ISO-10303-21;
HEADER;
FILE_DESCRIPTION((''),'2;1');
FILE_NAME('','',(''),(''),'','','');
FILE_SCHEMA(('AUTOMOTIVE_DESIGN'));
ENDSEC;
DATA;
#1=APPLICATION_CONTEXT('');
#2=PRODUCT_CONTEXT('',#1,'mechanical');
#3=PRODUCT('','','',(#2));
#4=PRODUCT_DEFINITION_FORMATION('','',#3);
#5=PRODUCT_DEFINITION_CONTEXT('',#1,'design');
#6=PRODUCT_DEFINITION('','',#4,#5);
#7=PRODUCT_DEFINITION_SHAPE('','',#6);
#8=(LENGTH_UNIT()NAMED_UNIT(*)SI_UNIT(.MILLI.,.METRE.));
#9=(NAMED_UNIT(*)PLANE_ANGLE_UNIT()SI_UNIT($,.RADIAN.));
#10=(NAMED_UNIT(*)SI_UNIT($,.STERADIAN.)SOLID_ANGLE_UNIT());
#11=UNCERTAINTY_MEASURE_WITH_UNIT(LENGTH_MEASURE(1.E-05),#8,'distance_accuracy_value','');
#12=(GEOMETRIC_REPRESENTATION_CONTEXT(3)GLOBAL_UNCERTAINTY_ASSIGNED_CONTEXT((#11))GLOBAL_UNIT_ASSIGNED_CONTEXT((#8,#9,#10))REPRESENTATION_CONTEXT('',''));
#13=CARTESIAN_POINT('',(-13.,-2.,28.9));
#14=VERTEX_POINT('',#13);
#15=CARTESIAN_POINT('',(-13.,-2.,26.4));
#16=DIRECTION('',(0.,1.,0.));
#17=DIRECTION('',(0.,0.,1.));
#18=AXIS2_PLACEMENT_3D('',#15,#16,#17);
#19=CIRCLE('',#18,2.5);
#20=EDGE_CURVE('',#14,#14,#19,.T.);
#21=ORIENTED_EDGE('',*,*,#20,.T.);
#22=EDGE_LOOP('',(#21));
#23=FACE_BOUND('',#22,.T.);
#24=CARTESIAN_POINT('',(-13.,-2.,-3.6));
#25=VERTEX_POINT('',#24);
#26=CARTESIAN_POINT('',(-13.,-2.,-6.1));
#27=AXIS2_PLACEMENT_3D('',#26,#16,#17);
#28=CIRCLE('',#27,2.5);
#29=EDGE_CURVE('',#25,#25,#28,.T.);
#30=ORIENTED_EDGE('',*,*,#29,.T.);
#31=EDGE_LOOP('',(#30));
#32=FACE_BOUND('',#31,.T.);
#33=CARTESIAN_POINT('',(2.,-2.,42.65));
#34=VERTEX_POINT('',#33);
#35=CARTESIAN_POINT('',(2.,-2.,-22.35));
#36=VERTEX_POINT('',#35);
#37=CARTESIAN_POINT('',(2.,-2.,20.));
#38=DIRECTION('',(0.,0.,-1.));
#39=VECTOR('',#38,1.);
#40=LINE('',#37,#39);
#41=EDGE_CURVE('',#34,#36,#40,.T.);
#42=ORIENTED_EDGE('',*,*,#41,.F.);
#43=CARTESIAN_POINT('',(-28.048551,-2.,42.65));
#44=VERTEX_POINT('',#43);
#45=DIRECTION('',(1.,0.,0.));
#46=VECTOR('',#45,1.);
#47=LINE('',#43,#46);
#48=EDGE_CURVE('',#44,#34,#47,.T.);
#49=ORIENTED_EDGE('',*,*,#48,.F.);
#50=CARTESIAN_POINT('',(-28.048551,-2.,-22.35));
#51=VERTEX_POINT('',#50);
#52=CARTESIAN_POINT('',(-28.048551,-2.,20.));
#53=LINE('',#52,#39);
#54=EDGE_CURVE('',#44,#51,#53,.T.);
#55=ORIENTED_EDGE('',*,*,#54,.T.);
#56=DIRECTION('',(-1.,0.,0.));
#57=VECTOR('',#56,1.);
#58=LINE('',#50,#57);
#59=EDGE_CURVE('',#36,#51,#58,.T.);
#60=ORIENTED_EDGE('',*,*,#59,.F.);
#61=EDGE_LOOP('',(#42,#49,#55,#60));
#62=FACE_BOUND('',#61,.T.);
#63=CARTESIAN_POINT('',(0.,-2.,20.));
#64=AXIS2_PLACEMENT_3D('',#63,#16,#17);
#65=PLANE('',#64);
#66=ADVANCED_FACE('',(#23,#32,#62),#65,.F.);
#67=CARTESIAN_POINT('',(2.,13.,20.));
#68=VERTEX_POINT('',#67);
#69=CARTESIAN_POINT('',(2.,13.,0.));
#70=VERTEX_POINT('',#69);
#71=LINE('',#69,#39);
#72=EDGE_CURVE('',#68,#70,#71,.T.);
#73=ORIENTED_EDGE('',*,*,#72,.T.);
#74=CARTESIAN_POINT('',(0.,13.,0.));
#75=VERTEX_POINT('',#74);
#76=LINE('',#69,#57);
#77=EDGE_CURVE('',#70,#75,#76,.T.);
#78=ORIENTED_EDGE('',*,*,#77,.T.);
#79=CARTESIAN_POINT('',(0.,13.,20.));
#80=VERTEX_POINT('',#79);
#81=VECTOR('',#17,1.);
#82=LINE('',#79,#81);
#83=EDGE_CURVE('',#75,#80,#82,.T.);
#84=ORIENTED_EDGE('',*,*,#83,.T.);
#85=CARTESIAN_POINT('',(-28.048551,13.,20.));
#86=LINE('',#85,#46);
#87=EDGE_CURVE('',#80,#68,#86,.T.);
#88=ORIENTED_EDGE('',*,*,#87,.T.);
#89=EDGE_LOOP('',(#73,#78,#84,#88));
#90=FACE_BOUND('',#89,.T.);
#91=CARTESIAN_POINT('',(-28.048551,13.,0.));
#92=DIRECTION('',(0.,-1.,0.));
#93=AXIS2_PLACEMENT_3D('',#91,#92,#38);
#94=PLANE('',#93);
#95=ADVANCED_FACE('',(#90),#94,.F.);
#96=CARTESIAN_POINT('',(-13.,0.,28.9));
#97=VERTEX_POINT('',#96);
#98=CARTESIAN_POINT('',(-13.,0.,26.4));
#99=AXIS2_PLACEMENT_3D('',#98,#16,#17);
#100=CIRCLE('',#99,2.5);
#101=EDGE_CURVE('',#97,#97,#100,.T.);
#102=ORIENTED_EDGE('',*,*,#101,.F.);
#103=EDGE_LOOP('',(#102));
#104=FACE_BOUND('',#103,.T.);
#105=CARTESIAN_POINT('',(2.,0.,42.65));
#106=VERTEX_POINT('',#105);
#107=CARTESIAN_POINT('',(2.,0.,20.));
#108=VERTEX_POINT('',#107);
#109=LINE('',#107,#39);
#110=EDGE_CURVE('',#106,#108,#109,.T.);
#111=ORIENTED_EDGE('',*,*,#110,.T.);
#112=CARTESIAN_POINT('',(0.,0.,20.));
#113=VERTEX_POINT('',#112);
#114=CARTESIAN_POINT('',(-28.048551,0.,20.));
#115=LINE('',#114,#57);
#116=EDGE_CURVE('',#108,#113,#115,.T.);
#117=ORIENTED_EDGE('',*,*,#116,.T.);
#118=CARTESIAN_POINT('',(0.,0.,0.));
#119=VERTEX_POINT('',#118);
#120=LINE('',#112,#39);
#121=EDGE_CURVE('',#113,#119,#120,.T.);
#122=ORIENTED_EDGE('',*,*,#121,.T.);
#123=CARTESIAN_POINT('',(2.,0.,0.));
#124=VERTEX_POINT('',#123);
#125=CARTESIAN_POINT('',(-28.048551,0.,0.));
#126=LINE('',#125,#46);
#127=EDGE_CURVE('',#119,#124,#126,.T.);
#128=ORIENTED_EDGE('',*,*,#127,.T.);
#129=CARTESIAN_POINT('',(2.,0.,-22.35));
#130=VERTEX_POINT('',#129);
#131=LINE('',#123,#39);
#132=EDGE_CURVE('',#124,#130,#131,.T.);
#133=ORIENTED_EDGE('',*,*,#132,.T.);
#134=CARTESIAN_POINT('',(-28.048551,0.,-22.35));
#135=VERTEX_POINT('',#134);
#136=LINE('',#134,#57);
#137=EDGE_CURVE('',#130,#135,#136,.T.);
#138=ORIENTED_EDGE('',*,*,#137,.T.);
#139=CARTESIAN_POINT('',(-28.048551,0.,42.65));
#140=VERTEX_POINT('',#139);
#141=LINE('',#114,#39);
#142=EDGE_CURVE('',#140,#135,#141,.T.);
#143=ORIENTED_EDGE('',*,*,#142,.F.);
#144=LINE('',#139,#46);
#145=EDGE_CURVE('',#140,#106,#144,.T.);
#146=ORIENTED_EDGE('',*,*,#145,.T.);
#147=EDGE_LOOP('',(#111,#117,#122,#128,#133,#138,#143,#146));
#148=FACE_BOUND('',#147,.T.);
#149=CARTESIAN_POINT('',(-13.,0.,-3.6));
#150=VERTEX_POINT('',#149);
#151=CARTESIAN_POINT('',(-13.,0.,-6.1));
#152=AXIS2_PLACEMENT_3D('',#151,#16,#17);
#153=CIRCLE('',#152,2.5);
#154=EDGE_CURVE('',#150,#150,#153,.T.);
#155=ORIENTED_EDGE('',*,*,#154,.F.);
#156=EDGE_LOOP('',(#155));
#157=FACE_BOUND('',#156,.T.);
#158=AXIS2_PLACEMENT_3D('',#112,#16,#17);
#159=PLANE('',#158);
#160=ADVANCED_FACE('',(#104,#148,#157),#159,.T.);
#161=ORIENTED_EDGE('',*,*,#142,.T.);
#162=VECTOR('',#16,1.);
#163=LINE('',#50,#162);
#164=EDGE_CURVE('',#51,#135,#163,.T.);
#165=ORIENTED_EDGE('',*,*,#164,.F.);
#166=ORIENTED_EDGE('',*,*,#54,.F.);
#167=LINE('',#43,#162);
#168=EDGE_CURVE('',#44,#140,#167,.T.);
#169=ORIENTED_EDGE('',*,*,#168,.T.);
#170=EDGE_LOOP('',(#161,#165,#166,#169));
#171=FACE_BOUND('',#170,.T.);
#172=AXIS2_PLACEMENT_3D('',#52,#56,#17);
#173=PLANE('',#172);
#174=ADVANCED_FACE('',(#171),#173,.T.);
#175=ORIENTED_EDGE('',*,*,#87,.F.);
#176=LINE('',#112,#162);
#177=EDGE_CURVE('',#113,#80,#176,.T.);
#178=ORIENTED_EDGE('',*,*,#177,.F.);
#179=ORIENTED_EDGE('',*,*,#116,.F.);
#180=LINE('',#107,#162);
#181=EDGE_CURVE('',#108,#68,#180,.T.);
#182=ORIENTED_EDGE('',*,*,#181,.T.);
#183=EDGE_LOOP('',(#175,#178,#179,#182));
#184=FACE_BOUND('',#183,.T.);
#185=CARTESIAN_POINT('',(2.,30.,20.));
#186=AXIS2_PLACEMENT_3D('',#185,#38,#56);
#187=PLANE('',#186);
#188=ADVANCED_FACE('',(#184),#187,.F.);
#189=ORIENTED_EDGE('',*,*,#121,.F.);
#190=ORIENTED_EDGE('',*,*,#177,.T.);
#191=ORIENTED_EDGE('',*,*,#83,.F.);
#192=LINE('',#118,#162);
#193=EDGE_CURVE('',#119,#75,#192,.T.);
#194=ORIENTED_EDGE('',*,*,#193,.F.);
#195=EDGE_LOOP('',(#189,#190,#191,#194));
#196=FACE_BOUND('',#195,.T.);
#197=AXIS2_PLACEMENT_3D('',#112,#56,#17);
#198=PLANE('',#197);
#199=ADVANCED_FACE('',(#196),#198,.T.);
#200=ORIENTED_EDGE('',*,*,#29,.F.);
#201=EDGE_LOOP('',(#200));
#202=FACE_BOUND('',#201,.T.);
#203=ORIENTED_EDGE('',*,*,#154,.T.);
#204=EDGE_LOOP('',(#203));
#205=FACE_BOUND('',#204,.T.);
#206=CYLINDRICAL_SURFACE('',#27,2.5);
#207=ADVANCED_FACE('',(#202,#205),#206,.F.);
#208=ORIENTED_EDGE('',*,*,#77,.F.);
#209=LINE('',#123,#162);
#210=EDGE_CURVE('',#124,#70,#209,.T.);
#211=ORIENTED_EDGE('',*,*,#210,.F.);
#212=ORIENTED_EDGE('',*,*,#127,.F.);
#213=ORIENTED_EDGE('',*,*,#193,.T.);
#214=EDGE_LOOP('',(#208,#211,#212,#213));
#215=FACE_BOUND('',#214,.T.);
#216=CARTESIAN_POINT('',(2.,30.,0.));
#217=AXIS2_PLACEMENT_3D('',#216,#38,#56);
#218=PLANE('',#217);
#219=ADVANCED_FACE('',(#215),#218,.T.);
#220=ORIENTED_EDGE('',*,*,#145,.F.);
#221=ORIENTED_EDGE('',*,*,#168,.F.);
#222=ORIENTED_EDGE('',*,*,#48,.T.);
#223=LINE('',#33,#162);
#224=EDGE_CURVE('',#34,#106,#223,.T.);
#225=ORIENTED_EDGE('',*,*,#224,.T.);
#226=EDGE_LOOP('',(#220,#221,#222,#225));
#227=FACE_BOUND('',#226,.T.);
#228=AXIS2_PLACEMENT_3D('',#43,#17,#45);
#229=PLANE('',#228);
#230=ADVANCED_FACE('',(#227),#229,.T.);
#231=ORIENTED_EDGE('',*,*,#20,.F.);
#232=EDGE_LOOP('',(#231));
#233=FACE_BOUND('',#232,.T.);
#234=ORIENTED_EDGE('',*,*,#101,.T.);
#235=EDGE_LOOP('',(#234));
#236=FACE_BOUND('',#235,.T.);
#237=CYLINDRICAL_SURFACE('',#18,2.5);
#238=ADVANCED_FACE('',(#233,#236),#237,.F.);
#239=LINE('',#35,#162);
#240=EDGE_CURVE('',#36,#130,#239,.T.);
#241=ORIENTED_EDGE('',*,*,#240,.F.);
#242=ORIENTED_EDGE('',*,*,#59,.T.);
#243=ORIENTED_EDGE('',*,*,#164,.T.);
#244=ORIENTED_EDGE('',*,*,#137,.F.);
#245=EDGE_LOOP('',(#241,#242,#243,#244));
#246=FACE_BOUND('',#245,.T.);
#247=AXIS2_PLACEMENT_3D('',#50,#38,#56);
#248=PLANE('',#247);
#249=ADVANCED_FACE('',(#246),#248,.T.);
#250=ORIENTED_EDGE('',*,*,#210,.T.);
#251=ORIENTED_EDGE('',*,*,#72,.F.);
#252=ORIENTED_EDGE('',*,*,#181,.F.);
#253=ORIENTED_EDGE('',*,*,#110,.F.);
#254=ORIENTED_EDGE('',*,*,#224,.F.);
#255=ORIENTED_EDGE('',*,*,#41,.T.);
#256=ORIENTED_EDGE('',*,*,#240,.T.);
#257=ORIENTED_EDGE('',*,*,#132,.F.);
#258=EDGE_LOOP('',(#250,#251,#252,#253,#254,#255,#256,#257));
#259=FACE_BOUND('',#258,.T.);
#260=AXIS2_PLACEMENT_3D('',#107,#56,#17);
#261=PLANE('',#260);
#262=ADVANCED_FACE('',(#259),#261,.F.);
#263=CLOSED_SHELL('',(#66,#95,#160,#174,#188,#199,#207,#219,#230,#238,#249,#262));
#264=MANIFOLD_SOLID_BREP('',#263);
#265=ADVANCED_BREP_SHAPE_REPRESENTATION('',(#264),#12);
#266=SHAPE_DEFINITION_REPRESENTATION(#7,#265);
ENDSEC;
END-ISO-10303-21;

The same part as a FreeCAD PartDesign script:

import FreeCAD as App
import Part
import Sketcher
Q = App.Units.Quantity

doc = App.newDocument("Part")
body = doc.addObject("PartDesign::Body", "Body")

# Sketch on XY plane
sketch1 = doc.addObject("Sketcher::SketchObject", "Sketch")
body.addObject(sketch1)
sketch1.AttachmentSupport = (doc.XY_Plane, [""])
sketch1.MapMode = "FlatFace"
sketch1.addGeometry(Part.LineSegment(App.Vector(0, 30, 0), App.Vector(0, 0, 0)), False)
sketch1.addGeometry(Part.LineSegment(App.Vector(0, 0, 0), App.Vector(-28, 0, 0)), False)
sketch1.addGeometry(Part.LineSegment(App.Vector(-28, 0, 0), App.Vector(-28, -2, 0)), False)
sketch1.addGeometry(Part.LineSegment(App.Vector(-28, -2, 0), App.Vector(2, -2, 0)), False)
sketch1.addGeometry(Part.LineSegment(App.Vector(2, -2, 0), App.Vector(2, 30, 0)), False)
sketch1.addGeometry(Part.LineSegment(App.Vector(2, 30, 0), App.Vector(0, 30, 0)), False)
sketch1.addConstraint(Sketcher.Constraint("Coincident", 0, 2, 1, 1))
sketch1.addConstraint(Sketcher.Constraint("Coincident", 1, 2, 2, 1))
sketch1.addConstraint(Sketcher.Constraint("Coincident", 2, 2, 3, 1))
sketch1.addConstraint(Sketcher.Constraint("Coincident", 3, 2, 4, 1))
sketch1.addConstraint(Sketcher.Constraint("Coincident", 4, 2, 5, 1))
sketch1.addConstraint(Sketcher.Constraint("Coincident", 5, 2, 0, 1))
sketch1.addConstraint(Sketcher.Constraint("Vertical", 0))
sketch1.addConstraint(Sketcher.Constraint("Horizontal", 1))
sketch1.addConstraint(Sketcher.Constraint("Vertical", 2))
sketch1.addConstraint(Sketcher.Constraint("Horizontal", 3))
sketch1.addConstraint(Sketcher.Constraint("Vertical", 4))
sketch1.addConstraint(Sketcher.Constraint("Horizontal", 5))
sketch1.addConstraint(Sketcher.Constraint("Coincident", 0, 2, -1, 1))
sketch1.addConstraint(Sketcher.Constraint("Equal", 5, 2))
sketch1.addConstraint(Sketcher.Constraint("DistanceX", 5, 2, 5, 1, Q("2 mm")))
sketch1.addConstraint(Sketcher.Constraint("DistanceY", 0, 2, 0, 1, Q("30 mm")))
sketch1.addConstraint(Sketcher.Constraint("DistanceX", 1, 2, 1, 1, Q("28.048551 mm")))
pad1 = doc.addObject("PartDesign::Pad", "Pad")
body.addObject(pad1)
pad1.Profile = sketch1
pad1.Length = 20

# Sketch on YZ plane
sketch2 = doc.addObject("Sketcher::SketchObject", "Sketch001")
body.addObject(sketch2)
sketch2.AttachmentSupport = (doc.YZ_Plane, [""])
sketch2.MapMode = "FlatFace"
sketch2.AttachmentOffset = App.Placement(App.Vector(0, 0, 2), App.Rotation())
sketch2.addGeometry(Part.LineSegment(App.Vector(30, 20, 0), App.Vector(13, 20, 0)), False)
sketch2.addGeometry(Part.LineSegment(App.Vector(13, 20, 0), App.Vector(13, 0, 0)), False)
sketch2.addGeometry(Part.LineSegment(App.Vector(13, 0, 0), App.Vector(30, 0, 0)), False)
sketch2.addGeometry(Part.LineSegment(App.Vector(30, 0, 0), App.Vector(30, 20, 0)), False)
sketch2.addConstraint(Sketcher.Constraint("Coincident", 0, 2, 1, 1))
sketch2.addConstraint(Sketcher.Constraint("Coincident", 1, 2, 2, 1))
sketch2.addConstraint(Sketcher.Constraint("Coincident", 2, 2, 3, 1))
sketch2.addConstraint(Sketcher.Constraint("Coincident", 3, 2, 0, 1))
sketch2.addConstraint(Sketcher.Constraint("Horizontal", 0))
sketch2.addConstraint(Sketcher.Constraint("Vertical", 1))
sketch2.addConstraint(Sketcher.Constraint("Horizontal", 2))
sketch2.addConstraint(Sketcher.Constraint("Vertical", 3))
sketch2.addConstraint(Sketcher.Constraint("PointOnObject", 1, 2, -1))
sketch2.addConstraint(Sketcher.Constraint("DistanceX", 0, 2, 0, 1, Q("17 mm")))
sketch2.addConstraint(Sketcher.Constraint("DistanceY", 1, 2, 1, 1, Q("20 mm")))
sketch2.addConstraint(Sketcher.Constraint("DistanceX", -1, 1, 0, 2, Q("13 mm")))
pocket1 = doc.addObject("PartDesign::Pocket", "Pocket")
body.addObject(pocket1)
pocket1.Profile = sketch2
pocket1.Type = "ThroughAll"

# Sketch on XZ plane
sketch3 = doc.addObject("Sketcher::SketchObject", "Sketch002")
body.addObject(sketch3)
sketch3.AttachmentSupport = (doc.XZ_Plane, [""])
sketch3.MapMode = "FlatFace"
sketch3.addGeometry(Part.LineSegment(App.Vector(-28, 0, 0), App.Vector(2, 0, 0)), False)
sketch3.addGeometry(Part.LineSegment(App.Vector(2, 0, 0), App.Vector(2, -22, 0)), False)
sketch3.addGeometry(Part.LineSegment(App.Vector(2, -22, 0), App.Vector(-28, -22, 0)), False)
sketch3.addGeometry(Part.LineSegment(App.Vector(-28, -22, 0), App.Vector(-28, 0, 0)), False)
sketch3.addGeometry(Part.LineSegment(App.Vector(-28, 20, 0), App.Vector(-28, 43, 0)), False)
sketch3.addGeometry(Part.LineSegment(App.Vector(-28, 43, 0), App.Vector(2, 43, 0)), False)
sketch3.addGeometry(Part.LineSegment(App.Vector(2, 43, 0), App.Vector(2, 20, 0)), False)
sketch3.addGeometry(Part.LineSegment(App.Vector(2, 20, 0), App.Vector(-28, 20, 0)), False)
sketch3.addConstraint(Sketcher.Constraint("Coincident", 0, 2, 1, 1))
sketch3.addConstraint(Sketcher.Constraint("Coincident", 1, 2, 2, 1))
sketch3.addConstraint(Sketcher.Constraint("Coincident", 2, 2, 3, 1))
sketch3.addConstraint(Sketcher.Constraint("Coincident", 3, 2, 0, 1))
sketch3.addConstraint(Sketcher.Constraint("Coincident", 4, 2, 5, 1))
sketch3.addConstraint(Sketcher.Constraint("Coincident", 5, 2, 6, 1))
sketch3.addConstraint(Sketcher.Constraint("Coincident", 6, 2, 7, 1))
sketch3.addConstraint(Sketcher.Constraint("Coincident", 7, 2, 4, 1))
sketch3.addConstraint(Sketcher.Constraint("Horizontal", 0))
sketch3.addConstraint(Sketcher.Constraint("Vertical", 1))
sketch3.addConstraint(Sketcher.Constraint("Horizontal", 2))
sketch3.addConstraint(Sketcher.Constraint("Vertical", 3))
sketch3.addConstraint(Sketcher.Constraint("Vertical", 4))
sketch3.addConstraint(Sketcher.Constraint("Horizontal", 5))
sketch3.addConstraint(Sketcher.Constraint("Vertical", 6))
sketch3.addConstraint(Sketcher.Constraint("Horizontal", 7))
sketch3.addConstraint(Sketcher.Constraint("PointOnObject", 0, 2, -1))
sketch3.addConstraint(Sketcher.Constraint("Vertical", 3, 2, 4, 2))
sketch3.addConstraint(Sketcher.Constraint("Vertical", 1, 2, 5, 2))
sketch3.addConstraint(Sketcher.Constraint("DistanceX", -1, 1, 0, 2, Q("2 mm")))
sketch3.addConstraint(Sketcher.Constraint("DistanceY", -1, 1, 6, 2, Q("20 mm")))
sketch3.addConstraint(Sketcher.Constraint("DistanceY", 2, 2, 4, 2, Q("65 mm")))
sketch3.addConstraint(Sketcher.Constraint("DistanceY", 1, 2, 1, 1, Q("22.35 mm")))
sketch3.addConstraint(Sketcher.Constraint("DistanceX", 0, 1, 0, 2, Q("30.048551 mm")))
pad2 = doc.addObject("PartDesign::Pad", "Pad001")
body.addObject(pad2)
pad2.Profile = sketch3
pad2.Length = 2

# Sketch on XZ plane
sketch4 = doc.addObject("Sketcher::SketchObject", "Sketch003")
body.addObject(sketch4)
sketch4.AttachmentSupport = (doc.XZ_Plane, [""])
sketch4.MapMode = "FlatFace"
sketch4.addGeometry(Part.Circle(App.Vector(-13, -6.1, 0), App.Vector(0, 0, 1), 2.5), False)
sketch4.addGeometry(Part.Circle(App.Vector(-13, 26.4, 0), App.Vector(0, 0, 1), 2.5), False)
sketch4.addConstraint(Sketcher.Constraint("Equal", 0, 1))
sketch4.addConstraint(Sketcher.Constraint("Vertical", 0, 3, 1, 3))
sketch4.addConstraint(Sketcher.Constraint("Diameter", 0, Q("5 mm")))
sketch4.addConstraint(Sketcher.Constraint("DistanceX", 0, 3, -1, 1, Q("13 mm")))
sketch4.addConstraint(Sketcher.Constraint("DistanceY", 0, 3, -1, 1, Q("6.1 mm")))
sketch4.addConstraint(Sketcher.Constraint("DistanceY", -1, 1, 1, 3, Q("26.4 mm")))
pocket2 = doc.addObject("PartDesign::Pocket", "Pocket001")
body.addObject(pocket2)
pocket2.Profile = sketch4
pocket2.Type = "ThroughAll"
pocket2.Reversed = True

doc.recompute()
